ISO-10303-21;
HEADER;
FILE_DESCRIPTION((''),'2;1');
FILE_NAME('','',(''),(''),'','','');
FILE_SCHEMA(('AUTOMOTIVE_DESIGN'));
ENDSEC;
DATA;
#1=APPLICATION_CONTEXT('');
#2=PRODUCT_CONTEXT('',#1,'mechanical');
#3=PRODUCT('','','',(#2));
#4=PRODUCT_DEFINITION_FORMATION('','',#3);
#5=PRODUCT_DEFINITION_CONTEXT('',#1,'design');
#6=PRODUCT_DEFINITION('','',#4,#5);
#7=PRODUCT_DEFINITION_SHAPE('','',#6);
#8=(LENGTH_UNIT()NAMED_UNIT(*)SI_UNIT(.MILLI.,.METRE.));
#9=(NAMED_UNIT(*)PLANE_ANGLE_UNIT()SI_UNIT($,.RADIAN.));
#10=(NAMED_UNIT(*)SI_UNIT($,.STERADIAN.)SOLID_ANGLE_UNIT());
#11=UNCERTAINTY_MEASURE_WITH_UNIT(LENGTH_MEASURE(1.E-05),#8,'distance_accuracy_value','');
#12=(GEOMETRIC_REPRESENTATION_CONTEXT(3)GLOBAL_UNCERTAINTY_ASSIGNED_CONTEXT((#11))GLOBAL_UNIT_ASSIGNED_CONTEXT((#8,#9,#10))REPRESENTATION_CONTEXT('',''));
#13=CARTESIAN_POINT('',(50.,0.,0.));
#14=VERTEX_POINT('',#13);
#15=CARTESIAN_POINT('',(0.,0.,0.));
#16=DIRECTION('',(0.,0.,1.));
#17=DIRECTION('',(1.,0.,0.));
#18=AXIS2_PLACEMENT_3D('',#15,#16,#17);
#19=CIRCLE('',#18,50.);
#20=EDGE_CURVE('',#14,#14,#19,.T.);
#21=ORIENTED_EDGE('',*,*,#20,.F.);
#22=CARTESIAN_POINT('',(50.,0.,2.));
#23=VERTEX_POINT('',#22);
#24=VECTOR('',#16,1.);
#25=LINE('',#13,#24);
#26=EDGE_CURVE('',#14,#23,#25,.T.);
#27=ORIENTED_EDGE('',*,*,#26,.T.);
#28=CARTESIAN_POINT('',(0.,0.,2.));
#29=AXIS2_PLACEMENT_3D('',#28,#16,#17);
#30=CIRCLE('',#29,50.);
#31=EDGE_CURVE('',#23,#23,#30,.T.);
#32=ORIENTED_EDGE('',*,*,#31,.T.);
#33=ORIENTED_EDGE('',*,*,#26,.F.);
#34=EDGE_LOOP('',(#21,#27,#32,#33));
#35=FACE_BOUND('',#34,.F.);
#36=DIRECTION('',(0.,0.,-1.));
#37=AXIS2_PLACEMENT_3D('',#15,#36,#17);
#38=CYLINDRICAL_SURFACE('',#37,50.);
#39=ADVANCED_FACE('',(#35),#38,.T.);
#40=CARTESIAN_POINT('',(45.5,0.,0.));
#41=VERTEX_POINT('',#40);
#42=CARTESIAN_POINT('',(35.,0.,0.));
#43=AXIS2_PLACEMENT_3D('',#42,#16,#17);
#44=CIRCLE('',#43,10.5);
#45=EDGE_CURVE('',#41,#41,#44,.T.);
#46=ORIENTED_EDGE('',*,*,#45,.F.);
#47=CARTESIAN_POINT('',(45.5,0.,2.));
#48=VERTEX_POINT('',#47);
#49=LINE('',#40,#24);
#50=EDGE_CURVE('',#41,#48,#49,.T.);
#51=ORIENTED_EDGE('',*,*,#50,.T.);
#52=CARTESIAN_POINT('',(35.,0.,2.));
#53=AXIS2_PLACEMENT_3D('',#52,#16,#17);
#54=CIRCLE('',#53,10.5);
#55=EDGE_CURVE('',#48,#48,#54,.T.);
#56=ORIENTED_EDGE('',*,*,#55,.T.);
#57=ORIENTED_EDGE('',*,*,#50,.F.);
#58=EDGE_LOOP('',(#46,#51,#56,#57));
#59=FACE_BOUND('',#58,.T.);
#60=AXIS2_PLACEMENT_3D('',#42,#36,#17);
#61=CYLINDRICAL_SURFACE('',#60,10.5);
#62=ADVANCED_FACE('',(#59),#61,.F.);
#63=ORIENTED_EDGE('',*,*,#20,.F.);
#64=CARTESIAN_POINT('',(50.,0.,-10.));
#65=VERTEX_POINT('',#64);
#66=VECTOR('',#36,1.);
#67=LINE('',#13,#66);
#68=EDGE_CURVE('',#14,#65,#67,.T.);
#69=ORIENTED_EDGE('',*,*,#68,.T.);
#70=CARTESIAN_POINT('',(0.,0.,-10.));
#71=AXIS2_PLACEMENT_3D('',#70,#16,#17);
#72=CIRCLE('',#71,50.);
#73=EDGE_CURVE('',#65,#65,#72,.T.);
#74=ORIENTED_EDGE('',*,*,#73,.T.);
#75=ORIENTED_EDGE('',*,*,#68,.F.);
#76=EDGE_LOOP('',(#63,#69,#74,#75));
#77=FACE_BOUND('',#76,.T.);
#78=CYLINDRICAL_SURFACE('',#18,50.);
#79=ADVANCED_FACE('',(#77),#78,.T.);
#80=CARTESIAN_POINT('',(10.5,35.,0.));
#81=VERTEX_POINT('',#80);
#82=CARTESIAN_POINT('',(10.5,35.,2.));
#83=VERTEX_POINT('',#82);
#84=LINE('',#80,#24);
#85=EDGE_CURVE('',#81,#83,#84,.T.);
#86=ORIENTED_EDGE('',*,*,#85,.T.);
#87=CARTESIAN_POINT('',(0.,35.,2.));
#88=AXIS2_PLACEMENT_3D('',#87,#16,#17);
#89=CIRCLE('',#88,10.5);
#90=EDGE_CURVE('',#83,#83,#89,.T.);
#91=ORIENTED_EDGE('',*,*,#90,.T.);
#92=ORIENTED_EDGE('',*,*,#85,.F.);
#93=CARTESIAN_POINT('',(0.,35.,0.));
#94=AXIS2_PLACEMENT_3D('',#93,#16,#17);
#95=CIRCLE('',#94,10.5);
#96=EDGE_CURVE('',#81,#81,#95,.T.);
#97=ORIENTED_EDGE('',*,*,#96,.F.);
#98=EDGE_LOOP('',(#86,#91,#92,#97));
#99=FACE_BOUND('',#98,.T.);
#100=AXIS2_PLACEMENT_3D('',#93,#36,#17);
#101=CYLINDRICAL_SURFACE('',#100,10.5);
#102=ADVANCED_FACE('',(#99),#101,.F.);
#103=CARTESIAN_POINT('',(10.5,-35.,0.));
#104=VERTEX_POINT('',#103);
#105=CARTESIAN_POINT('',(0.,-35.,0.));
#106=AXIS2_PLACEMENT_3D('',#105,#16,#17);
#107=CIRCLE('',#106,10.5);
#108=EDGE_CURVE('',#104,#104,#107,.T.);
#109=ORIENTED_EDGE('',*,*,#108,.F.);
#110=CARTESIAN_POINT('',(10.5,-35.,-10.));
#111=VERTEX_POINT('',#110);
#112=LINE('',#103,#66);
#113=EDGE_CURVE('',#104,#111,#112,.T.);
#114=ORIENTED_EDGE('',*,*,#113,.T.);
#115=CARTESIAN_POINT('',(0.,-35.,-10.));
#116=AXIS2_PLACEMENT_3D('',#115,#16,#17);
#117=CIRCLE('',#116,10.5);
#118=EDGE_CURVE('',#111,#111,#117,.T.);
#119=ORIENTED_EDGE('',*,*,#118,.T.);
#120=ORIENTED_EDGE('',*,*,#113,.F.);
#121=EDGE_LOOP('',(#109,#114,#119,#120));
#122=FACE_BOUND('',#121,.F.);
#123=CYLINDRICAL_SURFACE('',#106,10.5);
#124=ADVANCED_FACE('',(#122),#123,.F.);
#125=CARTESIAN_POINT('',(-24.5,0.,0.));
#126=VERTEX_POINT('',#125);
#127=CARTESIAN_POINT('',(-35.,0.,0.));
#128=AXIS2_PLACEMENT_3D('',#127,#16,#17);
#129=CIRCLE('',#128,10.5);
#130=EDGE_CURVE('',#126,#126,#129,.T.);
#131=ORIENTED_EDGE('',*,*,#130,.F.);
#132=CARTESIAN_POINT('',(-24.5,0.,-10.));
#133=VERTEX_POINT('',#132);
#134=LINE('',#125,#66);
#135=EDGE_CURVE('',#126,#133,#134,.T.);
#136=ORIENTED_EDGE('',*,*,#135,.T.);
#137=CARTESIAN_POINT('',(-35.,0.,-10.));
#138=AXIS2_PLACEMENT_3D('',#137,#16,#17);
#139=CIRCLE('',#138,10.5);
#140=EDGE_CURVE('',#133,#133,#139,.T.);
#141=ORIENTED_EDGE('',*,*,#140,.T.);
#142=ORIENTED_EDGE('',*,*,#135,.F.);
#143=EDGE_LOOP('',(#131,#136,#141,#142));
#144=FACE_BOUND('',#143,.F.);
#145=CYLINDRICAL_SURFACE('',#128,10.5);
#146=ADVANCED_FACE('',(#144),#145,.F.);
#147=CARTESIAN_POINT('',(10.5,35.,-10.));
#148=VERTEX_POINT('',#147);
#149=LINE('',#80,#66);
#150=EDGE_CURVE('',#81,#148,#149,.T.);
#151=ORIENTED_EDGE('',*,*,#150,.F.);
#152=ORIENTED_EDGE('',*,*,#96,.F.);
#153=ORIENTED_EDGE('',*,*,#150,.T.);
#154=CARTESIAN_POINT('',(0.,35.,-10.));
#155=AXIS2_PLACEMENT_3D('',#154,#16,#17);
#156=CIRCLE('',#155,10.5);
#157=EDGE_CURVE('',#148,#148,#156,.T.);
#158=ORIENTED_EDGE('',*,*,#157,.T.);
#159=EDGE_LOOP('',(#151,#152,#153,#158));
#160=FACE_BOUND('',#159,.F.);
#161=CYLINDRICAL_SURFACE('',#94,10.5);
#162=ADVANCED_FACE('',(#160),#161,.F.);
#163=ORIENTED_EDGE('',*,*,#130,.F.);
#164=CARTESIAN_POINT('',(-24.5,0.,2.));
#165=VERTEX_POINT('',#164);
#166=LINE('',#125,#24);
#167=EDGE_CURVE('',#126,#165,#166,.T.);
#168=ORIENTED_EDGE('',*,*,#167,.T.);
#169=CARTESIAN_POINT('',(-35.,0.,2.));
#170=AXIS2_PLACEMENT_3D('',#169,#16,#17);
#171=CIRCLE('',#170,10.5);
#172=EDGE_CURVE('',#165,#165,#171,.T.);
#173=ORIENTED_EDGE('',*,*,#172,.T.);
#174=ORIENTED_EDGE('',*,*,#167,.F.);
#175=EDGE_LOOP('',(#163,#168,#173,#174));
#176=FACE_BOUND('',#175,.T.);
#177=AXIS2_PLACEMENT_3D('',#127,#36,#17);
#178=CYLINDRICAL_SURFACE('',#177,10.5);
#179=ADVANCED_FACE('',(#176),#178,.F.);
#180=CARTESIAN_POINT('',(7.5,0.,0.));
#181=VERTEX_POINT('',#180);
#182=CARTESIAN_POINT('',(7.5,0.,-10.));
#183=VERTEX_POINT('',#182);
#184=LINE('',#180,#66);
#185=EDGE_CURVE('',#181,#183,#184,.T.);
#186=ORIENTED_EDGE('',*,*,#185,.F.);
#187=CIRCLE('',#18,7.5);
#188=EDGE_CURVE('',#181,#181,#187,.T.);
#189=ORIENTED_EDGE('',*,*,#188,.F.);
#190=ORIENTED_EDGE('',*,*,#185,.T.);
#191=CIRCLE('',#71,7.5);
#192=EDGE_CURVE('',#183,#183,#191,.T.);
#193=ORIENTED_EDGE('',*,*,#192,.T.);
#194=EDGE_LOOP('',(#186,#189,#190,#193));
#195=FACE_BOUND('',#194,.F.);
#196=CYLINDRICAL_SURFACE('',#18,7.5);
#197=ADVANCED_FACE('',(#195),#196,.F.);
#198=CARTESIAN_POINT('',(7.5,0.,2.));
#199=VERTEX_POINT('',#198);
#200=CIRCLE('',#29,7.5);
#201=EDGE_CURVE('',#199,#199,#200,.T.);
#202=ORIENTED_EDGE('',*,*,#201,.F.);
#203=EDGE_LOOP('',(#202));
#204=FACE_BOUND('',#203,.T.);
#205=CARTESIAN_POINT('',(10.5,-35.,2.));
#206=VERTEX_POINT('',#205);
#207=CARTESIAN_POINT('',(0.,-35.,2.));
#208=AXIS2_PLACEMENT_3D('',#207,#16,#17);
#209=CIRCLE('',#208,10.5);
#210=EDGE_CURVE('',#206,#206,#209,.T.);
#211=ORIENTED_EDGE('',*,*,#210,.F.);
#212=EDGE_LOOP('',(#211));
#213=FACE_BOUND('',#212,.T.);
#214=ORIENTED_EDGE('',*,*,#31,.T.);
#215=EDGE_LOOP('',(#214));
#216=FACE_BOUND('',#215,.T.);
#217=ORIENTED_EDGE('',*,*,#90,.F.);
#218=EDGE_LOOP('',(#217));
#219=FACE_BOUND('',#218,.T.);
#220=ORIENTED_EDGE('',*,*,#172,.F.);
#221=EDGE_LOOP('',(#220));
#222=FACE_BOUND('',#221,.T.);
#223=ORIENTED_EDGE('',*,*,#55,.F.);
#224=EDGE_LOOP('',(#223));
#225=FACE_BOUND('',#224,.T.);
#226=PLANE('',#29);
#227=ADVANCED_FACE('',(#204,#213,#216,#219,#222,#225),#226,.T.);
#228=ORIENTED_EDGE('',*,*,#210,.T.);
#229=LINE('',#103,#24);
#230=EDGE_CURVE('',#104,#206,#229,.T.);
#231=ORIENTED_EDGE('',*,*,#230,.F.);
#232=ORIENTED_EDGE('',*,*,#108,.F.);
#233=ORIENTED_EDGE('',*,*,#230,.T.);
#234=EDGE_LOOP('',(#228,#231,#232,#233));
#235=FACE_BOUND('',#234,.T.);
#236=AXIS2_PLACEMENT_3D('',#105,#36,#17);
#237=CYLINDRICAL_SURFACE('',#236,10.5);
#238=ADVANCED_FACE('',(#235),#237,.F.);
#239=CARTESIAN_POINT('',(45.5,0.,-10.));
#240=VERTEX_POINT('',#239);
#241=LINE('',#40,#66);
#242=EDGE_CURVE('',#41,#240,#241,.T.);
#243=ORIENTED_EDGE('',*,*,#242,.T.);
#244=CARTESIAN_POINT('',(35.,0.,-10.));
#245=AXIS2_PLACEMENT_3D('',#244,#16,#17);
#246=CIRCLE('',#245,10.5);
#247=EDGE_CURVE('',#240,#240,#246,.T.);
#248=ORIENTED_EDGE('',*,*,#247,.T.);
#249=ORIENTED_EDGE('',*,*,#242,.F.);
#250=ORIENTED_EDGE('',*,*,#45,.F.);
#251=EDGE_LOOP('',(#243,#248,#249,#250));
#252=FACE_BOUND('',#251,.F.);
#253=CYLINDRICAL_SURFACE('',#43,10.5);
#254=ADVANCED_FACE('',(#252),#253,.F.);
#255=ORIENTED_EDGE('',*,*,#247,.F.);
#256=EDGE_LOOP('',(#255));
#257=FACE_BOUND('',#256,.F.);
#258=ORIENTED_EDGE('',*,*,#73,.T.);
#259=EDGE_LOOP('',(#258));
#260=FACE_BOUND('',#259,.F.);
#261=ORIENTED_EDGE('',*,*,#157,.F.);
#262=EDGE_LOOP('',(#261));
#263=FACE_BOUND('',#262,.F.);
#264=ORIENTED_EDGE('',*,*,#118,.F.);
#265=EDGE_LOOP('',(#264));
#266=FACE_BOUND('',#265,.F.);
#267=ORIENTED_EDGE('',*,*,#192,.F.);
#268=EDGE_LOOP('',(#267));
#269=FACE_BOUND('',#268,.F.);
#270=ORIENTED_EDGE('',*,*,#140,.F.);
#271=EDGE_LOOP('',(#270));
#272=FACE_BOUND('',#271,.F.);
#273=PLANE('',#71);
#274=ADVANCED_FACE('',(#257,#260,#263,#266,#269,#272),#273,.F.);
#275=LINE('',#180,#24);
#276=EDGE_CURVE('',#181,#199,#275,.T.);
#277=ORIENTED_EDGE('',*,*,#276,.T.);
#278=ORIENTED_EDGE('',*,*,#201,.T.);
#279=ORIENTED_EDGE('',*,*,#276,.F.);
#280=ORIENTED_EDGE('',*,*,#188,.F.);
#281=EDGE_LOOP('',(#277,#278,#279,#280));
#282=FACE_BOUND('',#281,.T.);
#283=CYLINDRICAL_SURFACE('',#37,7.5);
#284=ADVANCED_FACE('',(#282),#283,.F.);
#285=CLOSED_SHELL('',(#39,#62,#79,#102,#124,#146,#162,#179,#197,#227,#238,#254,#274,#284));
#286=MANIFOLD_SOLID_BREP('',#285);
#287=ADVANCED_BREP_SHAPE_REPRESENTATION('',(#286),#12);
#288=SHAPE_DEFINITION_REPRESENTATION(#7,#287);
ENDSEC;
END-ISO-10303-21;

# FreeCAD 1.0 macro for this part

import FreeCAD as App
import Part
import Sketcher
from FreeCAD import Vector
Q = App.Units.Quantity

doc = App.newDocument("Part")
body = doc.addObject("PartDesign::Body", "Body")

# Sketch on XY plane
sketch1 = doc.addObject("Sketcher::SketchObject", "Sketch")
body.addObject(sketch1)
sketch1.AttachmentSupport = (doc.XY_Plane, [""])
sketch1.MapMode = "FlatFace"
sketch1.addGeometry(Part.Circle(Vector(0, 0, 0), Vector(0, 0, 1), 50), False)
sketch1.addGeometry(Part.Circle(Vector(0, -35, 0), Vector(0, 0, 1), 10), False)
sketch1.addGeometry(Part.Circle(Vector(-35, 0, 0), Vector(0, 0, 1), 10), False)
sketch1.addGeometry(Part.Circle(Vector(0, 0, 0), Vector(0, 0, 1), 8), False)
sketch1.addGeometry(Part.Circle(Vector(35, 0, 0), Vector(0, 0, 1), 10), False)
sketch1.addGeometry(Part.Circle(Vector(0, 35, 0), Vector(0, 0, 1), 10), False)
sketch1.addConstraint(Sketcher.Constraint("Coincident", 0, 3, -1, 1))
sketch1.addConstraint(Sketcher.Constraint("Coincident", 3, 3, -1, 1))
sketch1.addConstraint(Sketcher.Constraint("Equal", 1, 2))
sketch1.addConstraint(Sketcher.Constraint("Equal", 2, 4))
sketch1.addConstraint(Sketcher.Constraint("Equal", 4, 5))
sketch1.addConstraint(Sketcher.Constraint("Symmetric", 2, 3, 4, 3, -1, 1))
sketch1.addConstraint(Sketcher.Constraint("Symmetric", 1, 3, 5, 3, -1, 1))
sketch1.addConstraint(Sketcher.Constraint("PointOnObject", 1, 3, -2))
sketch1.addConstraint(Sketcher.Constraint("PointOnObject", 2, 3, -1))
sketch1.addConstraint(Sketcher.Constraint("Diameter", 0, Q("100 mm")))
sketch1.addConstraint(Sketcher.Constraint("Diameter", 1, Q("21 mm")))
sketch1.addConstraint(Sketcher.Constraint("Diameter", 3, Q("15 mm")))
sketch1.addConstraint(Sketcher.Constraint("DistanceY", 1, 3, -1, 1, Q("35 mm")))
sketch1.addConstraint(Sketcher.Constraint("DistanceX", 2, 3, -1, 1, Q("35 mm")))
pad1 = doc.addObject("PartDesign::Pad", "Pad")
body.addObject(pad1)
pad1.Profile = sketch1
pad1.Length = 10
pad1.Reversed = True

# Sketch on XY plane
sketch2 = doc.addObject("Sketcher::SketchObject", "Sketch001")
body.addObject(sketch2)
sketch2.AttachmentSupport = (doc.XY_Plane, [""])
sketch2.MapMode = "FlatFace"
sketch2.addGeometry(Part.Circle(Vector(0, 0, 0), Vector(0, 0, 1), 50), False)
sketch2.addGeometry(Part.Circle(Vector(0, -35, 0), Vector(0, 0, 1), 10), False)
sketch2.addGeometry(Part.Circle(Vector(-35, 0, 0), Vector(0, 0, 1), 10), False)
sketch2.addGeometry(Part.Circle(Vector(0, 0, 0), Vector(0, 0, 1), 8), False)
sketch2.addGeometry(Part.Circle(Vector(35, 0, 0), Vector(0, 0, 1), 10), False)
sketch2.addGeometry(Part.Circle(Vector(0, 35, 0), Vector(0, 0, 1), 10), False)
sketch2.addConstraint(Sketcher.Constraint("Coincident", 0, 3, -1, 1))
sketch2.addConstraint(Sketcher.Constraint("Coincident", 3, 3, -1, 1))
sketch2.addConstraint(Sketcher.Constraint("Equal", 1, 2))
sketch2.addConstraint(Sketcher.Constraint("Equal", 2, 4))
sketch2.addConstraint(Sketcher.Constraint("Equal", 4, 5))
sketch2.addConstraint(Sketcher.Constraint("Symmetric", 2, 3, 4, 3, -1, 1))
sketch2.addConstraint(Sketcher.Constraint("Symmetric", 1, 3, 5, 3, -1, 1))
sketch2.addConstraint(Sketcher.Constraint("PointOnObject", 1, 3, -2))
sketch2.addConstraint(Sketcher.Constraint("PointOnObject", 2, 3, -1))
sketch2.addConstraint(Sketcher.Constraint("Diameter", 0, Q("100 mm")))
sketch2.addConstraint(Sketcher.Constraint("Diameter", 1, Q("21 mm")))
sketch2.addConstraint(Sketcher.Constraint("Diameter", 3, Q("15 mm")))
sketch2.addConstraint(Sketcher.Constraint("DistanceY", 1, 3, -1, 1, Q("35 mm")))
sketch2.addConstraint(Sketcher.Constraint("DistanceX", 2, 3, -1, 1, Q("35 mm")))
pad2 = doc.addObject("PartDesign::Pad", "Pad001")
body.addObject(pad2)
pad2.Profile = sketch2
pad2.Length = 2

doc.recompute()
